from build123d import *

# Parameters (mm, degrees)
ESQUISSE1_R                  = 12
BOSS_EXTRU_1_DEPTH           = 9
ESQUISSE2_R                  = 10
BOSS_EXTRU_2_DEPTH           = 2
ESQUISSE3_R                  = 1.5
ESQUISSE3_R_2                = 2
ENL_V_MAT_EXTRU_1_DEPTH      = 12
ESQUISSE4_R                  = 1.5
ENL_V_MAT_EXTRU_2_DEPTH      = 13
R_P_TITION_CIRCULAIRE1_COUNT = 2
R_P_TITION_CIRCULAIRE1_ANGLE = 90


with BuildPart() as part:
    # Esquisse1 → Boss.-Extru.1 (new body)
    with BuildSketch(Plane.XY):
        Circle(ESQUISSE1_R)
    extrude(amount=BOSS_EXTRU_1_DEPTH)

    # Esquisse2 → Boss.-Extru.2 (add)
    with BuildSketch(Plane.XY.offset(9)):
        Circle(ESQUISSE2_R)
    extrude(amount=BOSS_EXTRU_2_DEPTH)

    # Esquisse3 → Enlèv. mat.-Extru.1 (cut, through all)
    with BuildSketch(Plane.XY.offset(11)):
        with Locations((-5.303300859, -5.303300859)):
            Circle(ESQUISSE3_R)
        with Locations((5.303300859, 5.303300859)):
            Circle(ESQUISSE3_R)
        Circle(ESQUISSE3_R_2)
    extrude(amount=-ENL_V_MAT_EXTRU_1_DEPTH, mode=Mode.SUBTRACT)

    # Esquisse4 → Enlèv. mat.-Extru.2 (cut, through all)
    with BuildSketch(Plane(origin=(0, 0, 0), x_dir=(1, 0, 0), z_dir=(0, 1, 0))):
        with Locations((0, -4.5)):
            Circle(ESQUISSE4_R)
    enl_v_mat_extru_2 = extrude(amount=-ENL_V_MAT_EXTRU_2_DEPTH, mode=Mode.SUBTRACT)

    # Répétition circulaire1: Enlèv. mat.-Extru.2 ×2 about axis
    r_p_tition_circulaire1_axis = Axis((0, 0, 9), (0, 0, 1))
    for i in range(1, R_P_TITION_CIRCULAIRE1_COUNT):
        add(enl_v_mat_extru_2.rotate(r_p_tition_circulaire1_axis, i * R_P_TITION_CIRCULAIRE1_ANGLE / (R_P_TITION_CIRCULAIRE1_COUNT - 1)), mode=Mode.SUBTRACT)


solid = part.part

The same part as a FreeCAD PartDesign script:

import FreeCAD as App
import Part
import Sketcher

V = App.Vector

doc = App.newDocument("Part")
params = doc.addObject("Spreadsheet::Sheet", "Params")
for row, (alias, value) in enumerate([
    ("sketch1_diameter", "24 mm"),
    ("pad1_length", "9 mm"),
    ("sketch2_diameter", "20 mm"),
    ("pad2_length", "2 mm"),
    ("sketch3_diameter", "3 mm"),
    ("sketch3_diameter2", "4 mm"),
    ("sketch4_diameter", "3 mm"),
], start=1):
    params.set(f"A{row}", alias)
    params.set(f"B{row}", "=" + value)
    params.setAlias(f"B{row}", alias)

body = doc.addObject("PartDesign::Body", "Body")

sketch1 = doc.addObject("Sketcher::SketchObject", "Sketch")
body.addObject(sketch1)
sketch1.AttachmentSupport = (doc.XY_Plane, [""])
sketch1.MapMode = "FlatFace"
sketch1.addGeometry(Part.Circle(V(0, 0, 0), V(0, 0, 1), 12), False)
sketch1.addConstraint(Sketcher.Constraint("Coincident", 0, 3, -1, 1))
sketch1.addConstraint(Sketcher.Constraint("Diameter", 0, 24.0))
sketch1.setExpression("Constraints[1]", "Params.sketch1_diameter")
pad1 = doc.addObject("PartDesign::Pad", "Pad")
body.addObject(pad1)
pad1.Profile = sketch1
pad1.setExpression("Length", "Params.pad1_length")

sketch2 = doc.addObject("Sketcher::SketchObject", "Sketch001")
body.addObject(sketch2)
sketch2.AttachmentSupport = (doc.XY_Plane, [""])
sketch2.MapMode = "FlatFace"
sketch2.AttachmentOffset = App.Placement(V(0, 0, 9), App.Rotation())
sketch2.addGeometry(Part.Circle(V(0, 0, 0), V(0, 0, 1), 10), False)
sketch2.addConstraint(Sketcher.Constraint("Coincident", 0, 3, -1, 1))
sketch2.addConstraint(Sketcher.Constraint("Diameter", 0, 20.0))
sketch2.setExpression("Constraints[1]", "Params.sketch2_diameter")
pad2 = doc.addObject("PartDesign::Pad", "Pad001")
body.addObject(pad2)
pad2.Profile = sketch2
pad2.setExpression("Length", "Params.pad2_length")

sketch3 = doc.addObject("Sketcher::SketchObject", "Sketch002")
body.addObject(sketch3)
sketch3.AttachmentSupport = (doc.XY_Plane, [""])
sketch3.MapMode = "FlatFace"
sketch3.AttachmentOffset = App.Placement(V(0, 0, 11), App.Rotation())
sketch3.addGeometry(Part.Circle(V(-5.303301, -5.303301, 0), V(0, 0, 1), 1.5), False)
sketch3.addGeometry(Part.Circle(V(5.303301, 5.303301, 0), V(0, 0, 1), 1.5), False)
sketch3.addGeometry(Part.Circle(V(0, 0, 0), V(0, 0, 1), 2), False)
sketch3.addConstraint(Sketcher.Constraint("Coincident", 2, 3, -1, 1))
sketch3.addConstraint(Sketcher.Constraint("Equal", 0, 1))
sketch3.addConstraint(Sketcher.Constraint("Symmetric", 0, 3, 1, 3, -1, 1))
sketch3.addConstraint(Sketcher.Constraint("Diameter", 0, 3.0))
sketch3.addConstraint(Sketcher.Constraint("Diameter", 2, 4.0))
sketch3.addConstraint(Sketcher.Constraint("DistanceX", 0, 3, -1, 1, 5.303301))
sketch3.addConstraint(Sketcher.Constraint("DistanceY", 0, 3, -1, 1, 5.303301))
sketch3.setExpression("Constraints[3]", "Params.sketch3_diameter")
sketch3.setExpression("Constraints[4]", "Params.sketch3_diameter2")
pocket1 = doc.addObject("PartDesign::Pocket", "Pocket")
body.addObject(pocket1)
pocket1.Profile = sketch3
pocket1.Type = "ThroughAll"

sketch4 = doc.addObject("Sketcher::SketchObject", "Sketch003")
body.addObject(sketch4)
sketch4.AttachmentSupport = (doc.XZ_Plane, [""])
sketch4.MapMode = "FlatFace"
sketch4.addGeometry(Part.Circle(V(0, 4.5, 0), V(0, 0, 1), 1.5), False)
sketch4.addConstraint(Sketcher.Constraint("PointOnObject", 0, 3, -2))
sketch4.addConstraint(Sketcher.Constraint("Diameter", 0, 3.0))
sketch4.addConstraint(Sketcher.Constraint("DistanceY", -1, 1, 0, 3, 4.5))
sketch4.setExpression("Constraints[1]", "Params.sketch4_diameter")
pocket2 = doc.addObject("PartDesign::Pocket", "Pocket001")
body.addObject(pocket2)
pocket2.Profile = sketch4
pocket2.Type = "ThroughAll"
pocket2.Reversed = True
doc.recompute()

polarpattern = doc.addObject("PartDesign::PolarPattern", "PolarPattern")
body.addObject(polarpattern)
polarpattern.Originals = [pocket2]
polarpattern.Axis = (doc.Z_Axis, [""])
polarpattern.Angle = 90
polarpattern.Occurrences = 2
body.Tip = polarpattern

doc.recompute()
